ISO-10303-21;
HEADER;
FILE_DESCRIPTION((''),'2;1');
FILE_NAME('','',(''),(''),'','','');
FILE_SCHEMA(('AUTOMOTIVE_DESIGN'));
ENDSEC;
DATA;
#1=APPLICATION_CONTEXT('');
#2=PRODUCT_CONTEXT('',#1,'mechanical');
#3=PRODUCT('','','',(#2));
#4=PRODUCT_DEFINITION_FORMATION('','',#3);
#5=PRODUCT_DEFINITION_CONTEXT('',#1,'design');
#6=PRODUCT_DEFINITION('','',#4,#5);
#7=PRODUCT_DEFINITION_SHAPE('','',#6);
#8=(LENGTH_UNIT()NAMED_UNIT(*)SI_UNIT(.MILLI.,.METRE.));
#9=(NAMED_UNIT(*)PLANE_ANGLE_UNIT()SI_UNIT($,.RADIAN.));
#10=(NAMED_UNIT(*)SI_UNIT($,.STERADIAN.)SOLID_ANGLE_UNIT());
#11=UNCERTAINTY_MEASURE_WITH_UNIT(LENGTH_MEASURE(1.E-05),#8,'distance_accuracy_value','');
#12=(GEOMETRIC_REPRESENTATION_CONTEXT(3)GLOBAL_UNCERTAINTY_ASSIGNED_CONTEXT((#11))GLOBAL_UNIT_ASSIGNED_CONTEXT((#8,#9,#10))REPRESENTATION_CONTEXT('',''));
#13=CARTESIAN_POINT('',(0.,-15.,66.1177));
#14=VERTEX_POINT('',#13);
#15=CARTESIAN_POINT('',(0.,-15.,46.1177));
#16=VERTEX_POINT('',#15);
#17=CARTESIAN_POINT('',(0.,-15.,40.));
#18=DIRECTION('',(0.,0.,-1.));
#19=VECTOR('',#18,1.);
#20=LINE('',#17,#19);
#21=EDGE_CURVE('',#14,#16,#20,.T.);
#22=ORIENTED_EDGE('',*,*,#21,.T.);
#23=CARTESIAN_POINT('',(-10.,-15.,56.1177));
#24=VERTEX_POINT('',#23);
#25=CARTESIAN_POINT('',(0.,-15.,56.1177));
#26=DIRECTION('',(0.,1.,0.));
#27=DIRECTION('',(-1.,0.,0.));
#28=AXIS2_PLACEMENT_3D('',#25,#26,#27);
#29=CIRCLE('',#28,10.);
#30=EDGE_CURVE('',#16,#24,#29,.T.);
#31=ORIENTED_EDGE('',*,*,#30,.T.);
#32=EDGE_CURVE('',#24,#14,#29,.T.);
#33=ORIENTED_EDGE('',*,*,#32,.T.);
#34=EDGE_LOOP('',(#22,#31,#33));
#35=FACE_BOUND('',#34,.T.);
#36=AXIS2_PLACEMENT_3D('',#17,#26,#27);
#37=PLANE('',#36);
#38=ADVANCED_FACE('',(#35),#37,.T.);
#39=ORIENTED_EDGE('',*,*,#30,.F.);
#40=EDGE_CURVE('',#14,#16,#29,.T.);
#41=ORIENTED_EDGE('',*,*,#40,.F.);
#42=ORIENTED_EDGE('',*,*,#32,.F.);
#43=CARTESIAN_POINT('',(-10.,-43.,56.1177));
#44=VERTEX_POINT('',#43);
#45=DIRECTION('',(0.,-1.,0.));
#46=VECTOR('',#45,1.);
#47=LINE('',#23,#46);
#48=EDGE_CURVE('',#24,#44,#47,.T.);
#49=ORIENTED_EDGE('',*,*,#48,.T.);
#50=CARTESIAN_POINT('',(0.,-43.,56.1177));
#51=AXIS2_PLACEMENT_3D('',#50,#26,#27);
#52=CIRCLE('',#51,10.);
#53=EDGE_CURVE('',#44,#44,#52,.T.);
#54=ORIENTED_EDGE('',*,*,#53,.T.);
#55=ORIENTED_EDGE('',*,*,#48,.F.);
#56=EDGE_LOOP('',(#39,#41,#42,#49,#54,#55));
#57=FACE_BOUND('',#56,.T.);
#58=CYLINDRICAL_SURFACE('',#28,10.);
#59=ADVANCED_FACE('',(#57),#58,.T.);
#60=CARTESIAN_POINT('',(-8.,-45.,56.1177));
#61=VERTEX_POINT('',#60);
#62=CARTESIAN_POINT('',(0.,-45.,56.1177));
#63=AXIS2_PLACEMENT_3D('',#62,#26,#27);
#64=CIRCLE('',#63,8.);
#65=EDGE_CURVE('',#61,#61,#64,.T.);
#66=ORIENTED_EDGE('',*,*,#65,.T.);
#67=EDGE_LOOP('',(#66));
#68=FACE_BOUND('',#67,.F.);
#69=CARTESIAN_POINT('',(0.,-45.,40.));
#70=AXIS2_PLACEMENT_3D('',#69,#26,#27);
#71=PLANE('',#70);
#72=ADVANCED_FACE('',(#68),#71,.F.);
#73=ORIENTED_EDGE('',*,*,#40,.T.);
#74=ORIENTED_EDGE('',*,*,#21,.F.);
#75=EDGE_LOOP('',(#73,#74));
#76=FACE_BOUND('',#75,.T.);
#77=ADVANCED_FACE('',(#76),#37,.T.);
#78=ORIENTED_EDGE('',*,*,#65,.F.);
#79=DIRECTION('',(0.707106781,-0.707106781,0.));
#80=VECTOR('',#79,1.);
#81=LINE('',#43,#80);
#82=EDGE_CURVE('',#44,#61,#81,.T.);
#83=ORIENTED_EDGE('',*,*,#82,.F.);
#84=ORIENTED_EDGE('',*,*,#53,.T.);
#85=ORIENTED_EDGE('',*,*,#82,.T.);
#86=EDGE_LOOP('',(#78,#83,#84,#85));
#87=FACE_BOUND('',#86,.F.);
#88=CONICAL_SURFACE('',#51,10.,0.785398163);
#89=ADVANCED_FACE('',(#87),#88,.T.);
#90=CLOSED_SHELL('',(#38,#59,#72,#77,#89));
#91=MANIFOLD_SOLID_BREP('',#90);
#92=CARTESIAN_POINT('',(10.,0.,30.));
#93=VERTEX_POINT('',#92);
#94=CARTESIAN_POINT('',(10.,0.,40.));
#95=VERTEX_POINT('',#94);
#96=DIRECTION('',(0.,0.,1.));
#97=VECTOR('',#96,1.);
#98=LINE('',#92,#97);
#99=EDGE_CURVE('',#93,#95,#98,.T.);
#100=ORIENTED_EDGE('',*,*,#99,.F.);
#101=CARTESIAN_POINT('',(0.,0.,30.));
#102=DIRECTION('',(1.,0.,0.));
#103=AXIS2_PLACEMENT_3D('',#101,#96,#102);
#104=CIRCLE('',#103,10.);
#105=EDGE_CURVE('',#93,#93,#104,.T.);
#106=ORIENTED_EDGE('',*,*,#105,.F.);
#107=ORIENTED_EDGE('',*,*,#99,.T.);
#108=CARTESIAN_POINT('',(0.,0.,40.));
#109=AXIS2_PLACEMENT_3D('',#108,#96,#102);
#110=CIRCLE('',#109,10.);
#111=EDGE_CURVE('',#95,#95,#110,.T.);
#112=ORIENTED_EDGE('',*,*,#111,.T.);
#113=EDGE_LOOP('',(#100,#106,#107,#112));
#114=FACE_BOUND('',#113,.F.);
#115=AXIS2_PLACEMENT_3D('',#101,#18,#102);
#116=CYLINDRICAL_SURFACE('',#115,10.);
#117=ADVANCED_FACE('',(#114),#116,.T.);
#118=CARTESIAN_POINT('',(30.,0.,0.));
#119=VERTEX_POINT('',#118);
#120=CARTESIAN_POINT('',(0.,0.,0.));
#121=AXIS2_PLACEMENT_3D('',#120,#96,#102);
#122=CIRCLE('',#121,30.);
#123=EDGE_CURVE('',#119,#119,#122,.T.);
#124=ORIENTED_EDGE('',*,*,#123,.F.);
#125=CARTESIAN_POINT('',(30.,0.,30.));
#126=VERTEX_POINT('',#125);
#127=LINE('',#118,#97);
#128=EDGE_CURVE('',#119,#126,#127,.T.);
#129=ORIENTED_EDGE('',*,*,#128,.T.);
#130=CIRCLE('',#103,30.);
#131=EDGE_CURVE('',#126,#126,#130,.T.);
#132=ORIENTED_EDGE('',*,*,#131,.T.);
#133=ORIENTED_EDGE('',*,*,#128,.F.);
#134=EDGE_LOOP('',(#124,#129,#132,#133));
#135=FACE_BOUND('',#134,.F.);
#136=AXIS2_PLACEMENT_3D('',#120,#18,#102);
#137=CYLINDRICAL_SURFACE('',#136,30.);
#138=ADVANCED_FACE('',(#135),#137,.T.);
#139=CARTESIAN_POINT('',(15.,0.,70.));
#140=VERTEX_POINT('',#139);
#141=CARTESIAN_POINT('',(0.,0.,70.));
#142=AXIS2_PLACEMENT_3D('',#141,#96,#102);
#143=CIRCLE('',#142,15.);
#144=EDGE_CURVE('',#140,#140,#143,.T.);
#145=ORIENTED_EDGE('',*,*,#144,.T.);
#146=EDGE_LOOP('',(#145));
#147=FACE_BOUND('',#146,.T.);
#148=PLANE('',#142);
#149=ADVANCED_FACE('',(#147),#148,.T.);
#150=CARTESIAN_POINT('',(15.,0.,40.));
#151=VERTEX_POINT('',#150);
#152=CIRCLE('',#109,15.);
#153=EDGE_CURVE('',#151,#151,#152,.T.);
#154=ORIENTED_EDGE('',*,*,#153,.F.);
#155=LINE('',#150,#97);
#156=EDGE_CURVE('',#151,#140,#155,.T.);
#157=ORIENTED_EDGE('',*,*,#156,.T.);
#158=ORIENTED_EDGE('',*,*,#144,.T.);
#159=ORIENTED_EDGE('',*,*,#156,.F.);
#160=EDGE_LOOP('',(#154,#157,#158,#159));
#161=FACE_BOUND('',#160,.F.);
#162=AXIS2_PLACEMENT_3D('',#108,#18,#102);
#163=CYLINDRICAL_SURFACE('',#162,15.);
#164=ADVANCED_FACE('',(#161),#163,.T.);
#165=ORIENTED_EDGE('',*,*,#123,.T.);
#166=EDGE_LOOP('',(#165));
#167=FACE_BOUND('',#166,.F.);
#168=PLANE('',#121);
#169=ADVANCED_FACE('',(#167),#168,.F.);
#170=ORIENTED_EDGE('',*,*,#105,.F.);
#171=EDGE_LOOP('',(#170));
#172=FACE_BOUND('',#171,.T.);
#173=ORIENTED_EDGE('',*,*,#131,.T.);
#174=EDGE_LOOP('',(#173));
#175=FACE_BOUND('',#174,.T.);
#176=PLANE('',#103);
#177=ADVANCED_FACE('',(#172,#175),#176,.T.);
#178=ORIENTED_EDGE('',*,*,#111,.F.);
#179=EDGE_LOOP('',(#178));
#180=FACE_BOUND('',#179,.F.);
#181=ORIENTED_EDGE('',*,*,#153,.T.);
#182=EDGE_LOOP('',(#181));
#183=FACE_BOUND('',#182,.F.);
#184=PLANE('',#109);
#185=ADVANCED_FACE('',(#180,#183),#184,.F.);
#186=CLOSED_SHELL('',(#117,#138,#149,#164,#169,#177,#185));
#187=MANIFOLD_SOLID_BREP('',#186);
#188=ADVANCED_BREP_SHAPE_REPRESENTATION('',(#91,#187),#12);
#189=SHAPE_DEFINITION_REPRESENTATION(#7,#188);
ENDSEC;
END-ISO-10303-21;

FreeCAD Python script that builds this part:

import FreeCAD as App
import Part
import Sketcher


def edges_at(feature, points):
    """Names of the edges that pass closest to the given points."""
    edges = feature.Shape.Edges
    near = lambda p: min(range(len(edges)), key=lambda i: edges[i].distToShape(Part.Vertex(*p))[0])
    return sorted({f"Edge{near(p) + 1}" for p in points})

doc = App.newDocument("Part")
body = doc.addObject("PartDesign::Body", "Body")
body.AllowCompound = True

# Sketch on XY plane
sketch1 = body.newObject("Sketcher::SketchObject", "Sketch")
sketch1.AttachmentSupport = (doc.getObject("XY_Plane"), [""])
sketch1.MapMode = "FlatFace"
sketch1.addGeometry(Part.Circle(App.Vector(0, 0, 0), App.Vector(0, 0, 1), 30), False)
sketch1.addConstraint(Sketcher.Constraint("Coincident", 0, 3, -1, 1))
sketch1.addConstraint(Sketcher.Constraint("Diameter", 0, 60.0))
pad1 = body.newObject("PartDesign::Pad", "Pad")
pad1.Profile = sketch1
pad1.Length = 30

# Sketch on XY plane
sketch2 = body.newObject("Sketcher::SketchObject", "Sketch001")
sketch2.AttachmentSupport = (doc.getObject("XY_Plane"), [""])
sketch2.MapMode = "FlatFace"
sketch2.AttachmentOffset = App.Placement(App.Vector(0, 0, 30), App.Rotation())
sketch2.addGeometry(Part.Circle(App.Vector(0, 0, 0), App.Vector(0, 0, 1), 10), False)
sketch2.addConstraint(Sketcher.Constraint("Coincident", 0, 3, -1, 1))
sketch2.addConstraint(Sketcher.Constraint("Diameter", 0, 20.0))
pad2 = body.newObject("PartDesign::Pad", "Pad001")
pad2.Profile = sketch2
pad2.Length = 10

# Sketch on XY plane
sketch3 = body.newObject("Sketcher::SketchObject", "Sketch002")
sketch3.AttachmentSupport = (doc.getObject("XY_Plane"), [""])
sketch3.MapMode = "FlatFace"
sketch3.AttachmentOffset = App.Placement(App.Vector(0, 0, 40), App.Rotation())
sketch3.addGeometry(Part.Circle(App.Vector(0, 0, 0), App.Vector(0, 0, 1), 15), False)
sketch3.addConstraint(Sketcher.Constraint("Coincident", 0, 3, -1, 1))
sketch3.addConstraint(Sketcher.Constraint("Diameter", 0, 30.0))
pad3 = body.newObject("PartDesign::Pad", "Pad002")
pad3.Profile = sketch3
pad3.Length = 30

# Sketch on XZ plane
sketch4 = body.newObject("Sketcher::SketchObject", "Sketch003")
sketch4.AttachmentSupport = (doc.getObject("XZ_Plane"), [""])
sketch4.MapMode = "FlatFace"
sketch4.AttachmentOffset = App.Placement(App.Vector(0, 0, 15), App.Rotation())
sketch4.addGeometry(Part.Circle(App.Vector(0, 56, 0), App.Vector(0, 0, 1), 10), False)
sketch4.addConstraint(Sketcher.Constraint("PointOnObject", 0, 3, -2))
sketch4.addConstraint(Sketcher.Constraint("Diameter", 0, 20.0))
sketch4.addConstraint(Sketcher.Constraint("DistanceY", -1, 1, 0, 3, 56.1177))
pad4 = body.newObject("PartDesign::Pad", "Pad003")
pad4.Profile = sketch4
pad4.Length = 30
doc.recompute()

chamfer = body.newObject("PartDesign::Chamfer", "Chamfer")
chamfer.Base = (pad4, edges_at(pad4, [(10, -45, 56.118)]))
chamfer.Size = 2

doc.recompute()
